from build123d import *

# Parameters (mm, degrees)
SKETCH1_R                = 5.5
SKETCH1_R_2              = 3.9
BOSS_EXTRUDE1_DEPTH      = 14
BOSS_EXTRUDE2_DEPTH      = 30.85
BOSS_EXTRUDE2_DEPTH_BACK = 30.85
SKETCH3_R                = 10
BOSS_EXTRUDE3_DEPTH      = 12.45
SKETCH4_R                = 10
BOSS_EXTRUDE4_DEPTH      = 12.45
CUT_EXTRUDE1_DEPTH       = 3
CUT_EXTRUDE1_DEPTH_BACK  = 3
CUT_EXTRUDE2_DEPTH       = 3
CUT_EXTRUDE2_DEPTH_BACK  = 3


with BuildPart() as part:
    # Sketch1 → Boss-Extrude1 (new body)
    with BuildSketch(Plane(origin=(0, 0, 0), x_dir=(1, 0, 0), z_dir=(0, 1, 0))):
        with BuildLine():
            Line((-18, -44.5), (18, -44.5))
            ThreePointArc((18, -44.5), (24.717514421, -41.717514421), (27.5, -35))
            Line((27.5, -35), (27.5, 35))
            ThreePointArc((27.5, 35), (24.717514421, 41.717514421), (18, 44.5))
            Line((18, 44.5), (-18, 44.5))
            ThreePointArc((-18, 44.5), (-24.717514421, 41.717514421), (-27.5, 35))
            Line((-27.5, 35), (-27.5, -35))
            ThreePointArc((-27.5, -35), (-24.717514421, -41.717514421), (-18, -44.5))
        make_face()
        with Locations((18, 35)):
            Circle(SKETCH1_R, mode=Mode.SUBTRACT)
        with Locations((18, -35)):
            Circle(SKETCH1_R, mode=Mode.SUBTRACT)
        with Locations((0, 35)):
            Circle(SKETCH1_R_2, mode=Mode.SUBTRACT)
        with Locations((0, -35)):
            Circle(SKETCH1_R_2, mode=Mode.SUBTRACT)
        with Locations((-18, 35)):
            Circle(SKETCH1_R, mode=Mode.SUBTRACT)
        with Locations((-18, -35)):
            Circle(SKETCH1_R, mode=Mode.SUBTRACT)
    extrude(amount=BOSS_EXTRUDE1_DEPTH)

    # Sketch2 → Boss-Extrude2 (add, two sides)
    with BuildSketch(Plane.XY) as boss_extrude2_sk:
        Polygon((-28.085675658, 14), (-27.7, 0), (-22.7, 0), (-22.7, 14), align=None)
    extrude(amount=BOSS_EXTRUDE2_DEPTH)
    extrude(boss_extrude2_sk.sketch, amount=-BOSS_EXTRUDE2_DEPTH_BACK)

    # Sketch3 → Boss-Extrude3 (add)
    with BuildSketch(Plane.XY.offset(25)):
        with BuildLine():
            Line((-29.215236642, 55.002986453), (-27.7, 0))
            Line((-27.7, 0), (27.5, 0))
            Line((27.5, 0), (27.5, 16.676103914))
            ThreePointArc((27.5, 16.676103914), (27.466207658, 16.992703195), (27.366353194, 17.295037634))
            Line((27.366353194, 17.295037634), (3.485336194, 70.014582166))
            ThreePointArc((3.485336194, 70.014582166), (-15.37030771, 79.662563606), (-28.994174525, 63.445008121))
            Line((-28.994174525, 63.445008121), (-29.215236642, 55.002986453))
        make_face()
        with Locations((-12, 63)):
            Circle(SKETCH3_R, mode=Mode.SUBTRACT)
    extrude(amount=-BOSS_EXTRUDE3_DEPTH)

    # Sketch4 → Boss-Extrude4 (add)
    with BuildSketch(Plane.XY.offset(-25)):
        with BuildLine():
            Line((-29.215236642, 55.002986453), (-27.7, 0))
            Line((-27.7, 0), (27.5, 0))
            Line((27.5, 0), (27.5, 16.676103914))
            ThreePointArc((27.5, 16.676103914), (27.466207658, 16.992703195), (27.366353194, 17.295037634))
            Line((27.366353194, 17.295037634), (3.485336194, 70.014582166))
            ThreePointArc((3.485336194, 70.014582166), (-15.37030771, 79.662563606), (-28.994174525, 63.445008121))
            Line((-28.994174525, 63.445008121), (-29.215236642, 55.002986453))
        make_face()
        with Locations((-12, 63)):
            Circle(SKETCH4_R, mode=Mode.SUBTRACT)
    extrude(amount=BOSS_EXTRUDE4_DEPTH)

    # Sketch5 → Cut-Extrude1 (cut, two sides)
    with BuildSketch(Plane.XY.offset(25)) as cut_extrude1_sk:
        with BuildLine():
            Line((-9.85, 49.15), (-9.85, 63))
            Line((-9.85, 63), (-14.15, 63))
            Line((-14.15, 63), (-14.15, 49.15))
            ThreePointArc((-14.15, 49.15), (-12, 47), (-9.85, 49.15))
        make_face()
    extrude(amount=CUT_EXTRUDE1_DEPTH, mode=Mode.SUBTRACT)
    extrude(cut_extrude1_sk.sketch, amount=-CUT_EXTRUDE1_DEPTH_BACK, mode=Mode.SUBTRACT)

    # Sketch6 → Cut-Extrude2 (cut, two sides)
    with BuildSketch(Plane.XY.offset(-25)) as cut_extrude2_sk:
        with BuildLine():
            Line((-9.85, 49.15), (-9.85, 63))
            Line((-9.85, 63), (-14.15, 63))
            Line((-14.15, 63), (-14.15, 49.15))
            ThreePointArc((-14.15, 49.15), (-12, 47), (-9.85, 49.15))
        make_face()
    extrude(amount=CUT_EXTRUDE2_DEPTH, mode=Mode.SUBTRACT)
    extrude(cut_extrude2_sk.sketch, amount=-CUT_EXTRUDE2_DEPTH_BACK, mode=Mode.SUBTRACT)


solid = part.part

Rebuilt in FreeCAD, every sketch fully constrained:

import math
import FreeCAD as App
import Part
import Sketcher
from FreeCAD import Vector
Q = App.Units.Quantity

doc = App.newDocument("Part")
params = doc.addObject("Spreadsheet::Sheet", "Params")
for row, (alias, value) in enumerate([
    ("sketch1_diameter", "11 mm"),
    ("sketch1_diameter2", "7.8 mm"),
    ("sketch1_radius", "9.5 mm"),
    ("sketch1_width", "36 mm"),
    ("sketch1_height", "70 mm"),
    ("pad1_length", "14 mm"),
    ("sketch2_width", "5 mm"),
    ("sketch2_height", "14 mm"),
    ("pad2_length", "30.85 mm"),
    ("pad2_length2", "30.85 mm"),
    ("sketch3_diameter", "20 mm"),
    ("sketch3_radius", "17 mm"),
    ("sketch3_radius2", "1.5 mm"),
    ("sketch3_width", "55.2 mm"),
    ("pad3_length", "12.45 mm"),
    ("sketch4_diameter", "20 mm"),
    ("sketch4_radius", "17 mm"),
    ("sketch4_radius2", "1.5 mm"),
    ("sketch4_width", "55.2 mm"),
    ("pad4_length", "12.45 mm"),
    ("sketch5_radius", "2.15 mm"),
    ("sketch5_height", "13.85 mm"),
    ("pocket1_length", "3 mm"),
    ("pocket1_length2", "3 mm"),
    ("sketch6_radius", "2.15 mm"),
    ("sketch6_height", "13.85 mm"),
    ("pocket2_length", "3 mm"),
    ("pocket2_length2", "3 mm"),
], start=1):
    params.set(f"A{row}", alias)
    params.set(f"B{row}", "=" + value)
    params.setAlias(f"B{row}", alias)

body = doc.addObject("PartDesign::Body", "Body")

# Sketch on XZ plane
sketch1 = body.newObject("Sketcher::SketchObject", "Sketch")
sketch1.AttachmentSupport = (doc.getObject("XZ_Plane"), [""])
sketch1.MapMode = "FlatFace"
sketch1.addGeometry([
    Part.LineSegment(Vector(-18, 44.5, 0), Vector(18, 44.5, 0)),  # 0
    Part.ArcOfCircle(Part.Circle(Vector(18, 35, 0), Vector(0, 0, 1), 9.5), math.radians(0), math.radians(90)),  # 1
    Part.LineSegment(Vector(27.5, 35, 0), Vector(27.5, -35, 0)),  # 2
    Part.ArcOfCircle(Part.Circle(Vector(18, -35, 0), Vector(0, 0, 1), 9.5), math.radians(-90), math.radians(0)),  # 3
    Part.LineSegment(Vector(18, -44.5, 0), Vector(-18, -44.5, 0)),  # 4
    Part.ArcOfCircle(Part.Circle(Vector(-18, -35, 0), Vector(0, 0, 1), 9.5), math.radians(-180), math.radians(-90)),  # 5
    Part.LineSegment(Vector(-27.5, -35, 0), Vector(-27.5, 35, 0)),  # 6
    Part.ArcOfCircle(Part.Circle(Vector(-18, 35, 0), Vector(0, 0, 1), 9.5), math.radians(90), math.radians(180)),  # 7
    Part.Circle(Vector(-18, 35, 0), Vector(0, 0, 1), 5.5),  # 8
    Part.Circle(Vector(0, 35, 0), Vector(0, 0, 1), 3.9),  # 9
    Part.Circle(Vector(18, 35, 0), Vector(0, 0, 1), 5.5),  # 10
    Part.Circle(Vector(-18, -35, 0), Vector(0, 0, 1), 5.5),  # 11
    Part.Circle(Vector(0, -35, 0), Vector(0, 0, 1), 3.9),  # 12
    Part.Circle(Vector(18, -35, 0), Vector(0, 0, 1), 5.5),  # 13
], False)
sketch1.addConstraint([
    Sketcher.Constraint("Tangent", 0, 2, 1, 2),
    Sketcher.Constraint("Tangent", 1, 1, 2, 1),
    Sketcher.Constraint("Tangent", 2, 2, 3, 2),
    Sketcher.Constraint("Tangent", 3, 1, 4, 1),
    Sketcher.Constraint("Tangent", 4, 2, 5, 2),
    Sketcher.Constraint("Tangent", 5, 1, 6, 1),
    Sketcher.Constraint("Tangent", 6, 2, 7, 2),
    Sketcher.Constraint("Tangent", 7, 1, 0, 1),
    Sketcher.Constraint("Horizontal", 0),
    Sketcher.Constraint("Vertical", 2),
    Sketcher.Constraint("Horizontal", 4),
    Sketcher.Constraint("Vertical", 6),
    Sketcher.Constraint("Coincident", 8, 3, 7, 3),
    Sketcher.Constraint("Coincident", 10, 3, 1, 3),
    Sketcher.Constraint("Coincident", 11, 3, 5, 3),
    Sketcher.Constraint("Coincident", 13, 3, 3, 3),
    Sketcher.Constraint("Equal", 1, 3),
    Sketcher.Constraint("Equal", 3, 5),
    Sketcher.Constraint("Equal", 5, 7),
    Sketcher.Constraint("Equal", 8, 10),
    Sketcher.Constraint("Equal", 10, 11),
    Sketcher.Constraint("Equal", 9, 12),
    Sketcher.Constraint("Equal", 11, 13),
    Sketcher.Constraint("Symmetric", 1, 3, 5, 3, -1, 1),
    Sketcher.Constraint("Symmetric", 9, 3, 12, 3, -1, 1),
    Sketcher.Constraint("PointOnObject", 9, 3, -2),
    Sketcher.Constraint("Horizontal", 8, 3, 9, 3),
    Sketcher.Constraint("Diameter", 8, Q("11 mm")),
    Sketcher.Constraint("Diameter", 9, Q("7.8 mm")),
    Sketcher.Constraint("Radius", 1, Q("9.5 mm")),
    Sketcher.Constraint("DistanceX", 0, 1, 0, 2, Q("36 mm")),
    Sketcher.Constraint("DistanceY", 2, 2, 2, 1, Q("70 mm")),
])
sketch1.setExpression("Constraints[27]", "Params.sketch1_diameter")
sketch1.setExpression("Constraints[28]", "Params.sketch1_diameter2")
sketch1.setExpression("Constraints[29]", "Params.sketch1_radius")
sketch1.setExpression("Constraints[30]", "Params.sketch1_width")
sketch1.setExpression("Constraints[31]", "Params.sketch1_height")
pad1 = body.newObject("PartDesign::Pad", "Pad")
pad1.Profile = sketch1
pad1.setExpression("Length", "Params.pad1_length")
pad1.Reversed = True

# Sketch on XY plane
sketch2 = body.newObject("Sketcher::SketchObject", "Sketch001")
sketch2.AttachmentSupport = (doc.getObject("XY_Plane"), [""])
sketch2.MapMode = "FlatFace"
sketch2.addGeometry([
    Part.LineSegment(Vector(-28.085676, 14, 0), Vector(-27.7, 0, 0)),
    Part.LineSegment(Vector(-27.7, 0, 0), Vector(-22.7, 0, 0)),
    Part.LineSegment(Vector(-22.7, 0, 0), Vector(-22.7, 14, 0)),
    Part.LineSegment(Vector(-22.7, 14, 0), Vector(-28.085676, 14, 0)),
], False)
sketch2.addConstraint([
    Sketcher.Constraint("Coincident", 0, 2, 1, 1),
    Sketcher.Constraint("Coincident", 1, 2, 2, 1),
    Sketcher.Constraint("Coincident", 2, 2, 3, 1),
    Sketcher.Constraint("Coincident", 3, 2, 0, 1),
    Sketcher.Constraint("Horizontal", 1),
    Sketcher.Constraint("Vertical", 2),
    Sketcher.Constraint("Horizontal", 3),
    Sketcher.Constraint("PointOnObject", 0, 2, -1),
    Sketcher.Constraint("DistanceX", 1, 1, 1, 2, Q("5 mm")),
    Sketcher.Constraint("DistanceY", 2, 1, 2, 2, Q("14 mm")),
    Sketcher.Constraint("DistanceX", 0, 2, -1, 1, Q("27.7 mm")),
    Sketcher.Constraint("Distance", 0, Q("14.005311 mm")),
])
sketch2.setExpression("Constraints[8]", "Params.sketch2_width")
sketch2.setExpression("Constraints[9]", "Params.sketch2_height")
pad2 = body.newObject("PartDesign::Pad", "Pad001")
pad2.Profile = sketch2
pad2.Type = "TwoLengths"
pad2.setExpression("Length", "Params.pad2_length")
pad2.setExpression("Length2", "Params.pad2_length2")

# Sketch on XY plane
sketch3 = body.newObject("Sketcher::SketchObject", "Sketch002")
sketch3.AttachmentSupport = (doc.getObject("XY_Plane"), [""])
sketch3.MapMode = "FlatFace"
sketch3.AttachmentOffset = App.Placement(Vector(0, 0, 25), App.Rotation())
sketch3.addGeometry([
    Part.LineSegment(Vector(-29.2, 55, 0), Vector(-27.7, 0, 0)),  # 0
    Part.LineSegment(Vector(-27.7, 0, 0), Vector(27.5, 0, 0)),  # 1
    Part.LineSegment(Vector(27.5, 0, 0), Vector(27.5, 16.7, 0)),  # 2
    Part.ArcOfCircle(Part.Circle(Vector(26, 16.7, 0), Vector(0, 0, 1), 1.5), math.radians(0), math.radians(24)),  # 3
    Part.LineSegment(Vector(27.4, 17.3, 0), Vector(3.5, 70, 0)),  # 4
    Part.ArcOfCircle(Part.Circle(Vector(-12, 63, 0), Vector(0, 0, 1), 17), math.radians(24), math.radians(178)),  # 5
    Part.LineSegment(Vector(-29, 63.4, 0), Vector(-29.2, 55, 0)),  # 6
    Part.Circle(Vector(-12, 63, 0), Vector(0, 0, 1), 10),  # 7
], False)
sketch3.addConstraint([
    Sketcher.Constraint("Coincident", 0, 2, 1, 1),
    Sketcher.Constraint("Coincident", 1, 2, 2, 1),
    Sketcher.Constraint("Tangent", 2, 2, 3, 1),
    Sketcher.Constraint("Tangent", 3, 2, 4, 1),
    Sketcher.Constraint("Tangent", 4, 2, 5, 1),
    Sketcher.Constraint("Tangent", 5, 2, 6, 1),
    Sketcher.Constraint("Coincident", 6, 2, 0, 1),
    Sketcher.Constraint("Horizontal", 1),
    Sketcher.Constraint("Vertical", 2),
    Sketcher.Constraint("Coincident", 7, 3, 5, 3),
    Sketcher.Constraint("PointOnObject", 0, 2, -1),
    Sketcher.Constraint("Diameter", 7, Q("20 mm")),
    Sketcher.Constraint("Radius", 5, Q("17 mm")),
    Sketcher.Constraint("Radius", 3, Q("1.5 mm")),
    Sketcher.Constraint("DistanceX", 1, 1, 1, 2, Q("55.2 mm")),
    Sketcher.Constraint("DistanceX", -1, 1, 3, 3, Q("26 mm")),
    Sketcher.Constraint("DistanceX", 5, 3, -1, 1, Q("12 mm")),
    Sketcher.Constraint("DistanceY", -1, 1, 5, 3, Q("63 mm")),
    Sketcher.Constraint("Angle", 6, Q("-91.5 deg")),
    Sketcher.Constraint("Distance", 4, Q("57.87619 mm")),
    Sketcher.Constraint("DistanceY", 6, 2, 5, 2, Q("8.442022 mm")),
])
sketch3.setExpression("Constraints[11]", "Params.sketch3_diameter")
sketch3.setExpression("Constraints[12]", "Params.sketch3_radius")
sketch3.setExpression("Constraints[13]", "Params.sketch3_radius2")
sketch3.setExpression("Constraints[14]", "Params.sketch3_width")
pad3 = body.newObject("PartDesign::Pad", "Pad002")
pad3.Profile = sketch3
pad3.setExpression("Length", "Params.pad3_length")
pad3.Reversed = True

# Sketch on XY plane
sketch4 = body.newObject("Sketcher::SketchObject", "Sketch003")
sketch4.AttachmentSupport = (doc.getObject("XY_Plane"), [""])
sketch4.MapMode = "FlatFace"
sketch4.AttachmentOffset = App.Placement(Vector(0, 0, -25), App.Rotation())
sketch4.addGeometry([
    Part.LineSegment(Vector(-29.2, 55, 0), Vector(-27.7, 0, 0)),  # 0
    Part.LineSegment(Vector(-27.7, 0, 0), Vector(27.5, 0, 0)),  # 1
    Part.LineSegment(Vector(27.5, 0, 0), Vector(27.5, 16.7, 0)),  # 2
    Part.ArcOfCircle(Part.Circle(Vector(26, 16.7, 0), Vector(0, 0, 1), 1.5), math.radians(0), math.radians(24)),  # 3
    Part.LineSegment(Vector(27.4, 17.3, 0), Vector(3.5, 70, 0)),  # 4
    Part.ArcOfCircle(Part.Circle(Vector(-12, 63, 0), Vector(0, 0, 1), 17), math.radians(24), math.radians(178)),  # 5
    Part.LineSegment(Vector(-29, 63.4, 0), Vector(-29.2, 55, 0)),  # 6
    Part.Circle(Vector(-12, 63, 0), Vector(0, 0, 1), 10),  # 7
], False)
sketch4.addConstraint([
    Sketcher.Constraint("Coincident", 0, 2, 1, 1),
    Sketcher.Constraint("Coincident", 1, 2, 2, 1),
    Sketcher.Constraint("Tangent", 2, 2, 3, 1),
    Sketcher.Constraint("Tangent", 3, 2, 4, 1),
    Sketcher.Constraint("Tangent", 4, 2, 5, 1),
    Sketcher.Constraint("Tangent", 5, 2, 6, 1),
    Sketcher.Constraint("Coincident", 6, 2, 0, 1),
    Sketcher.Constraint("Horizontal", 1),
    Sketcher.Constraint("Vertical", 2),
    Sketcher.Constraint("Coincident", 7, 3, 5, 3),
    Sketcher.Constraint("PointOnObject", 0, 2, -1),
    Sketcher.Constraint("Diameter", 7, Q("20 mm")),
    Sketcher.Constraint("Radius", 5, Q("17 mm")),
    Sketcher.Constraint("Radius", 3, Q("1.5 mm")),
    Sketcher.Constraint("DistanceX", 1, 1, 1, 2, Q("55.2 mm")),
    Sketcher.Constraint("DistanceX", -1, 1, 3, 3, Q("26 mm")),
    Sketcher.Constraint("DistanceX", 5, 3, -1, 1, Q("12 mm")),
    Sketcher.Constraint("DistanceY", -1, 1, 5, 3, Q("63 mm")),
    Sketcher.Constraint("Angle", 6, Q("-91.5 deg")),
    Sketcher.Constraint("Distance", 4, Q("57.87619 mm")),
    Sketcher.Constraint("DistanceY", 6, 2, 5, 2, Q("8.442022 mm")),
])
sketch4.setExpression("Constraints[11]", "Params.sketch4_diameter")
sketch4.setExpression("Constraints[12]", "Params.sketch4_radius")
sketch4.setExpression("Constraints[13]", "Params.sketch4_radius2")
sketch4.setExpression("Constraints[14]", "Params.sketch4_width")
pad4 = body.newObject("PartDesign::Pad", "Pad003")
pad4.Profile = sketch4
pad4.setExpression("Length", "Params.pad4_length")

# Sketch on XY plane
sketch5 = body.newObject("Sketcher::SketchObject", "Sketch004")
sketch5.AttachmentSupport = (doc.getObject("XY_Plane"), [""])
sketch5.MapMode = "FlatFace"
sketch5.AttachmentOffset = App.Placement(Vector(0, 0, 25), App.Rotation())
sketch5.addGeometry([
    Part.LineSegment(Vector(-9.8, 49.1, 0), Vector(-9.8, 63, 0)),
    Part.LineSegment(Vector(-9.8, 63, 0), Vector(-14.2, 63, 0)),
    Part.LineSegment(Vector(-14.2, 63, 0), Vector(-14.2, 49.1, 0)),
    Part.ArcOfCircle(Part.Circle(Vector(-12, 49.1, 0), Vector(0, 0, 1), 2.1), math.radians(180), math.radians(360)),
], False)
sketch5.addConstraint([
    Sketcher.Constraint("Coincident", 0, 2, 1, 1),
    Sketcher.Constraint("Coincident", 1, 2, 2, 1),
    Sketcher.Constraint("Tangent", 2, 2, 3, 1),
    Sketcher.Constraint("Tangent", 3, 2, 0, 1),
    Sketcher.Constraint("Vertical", 0),
    Sketcher.Constraint("Horizontal", 1),
    Sketcher.Constraint("Vertical", 2),
    Sketcher.Constraint("Radius", 3, Q("2.15 mm")),
    Sketcher.Constraint("DistanceX", 3, 3, -1, 1, Q("12 mm")),
    Sketcher.Constraint("DistanceY", -1, 1, 0, 2, Q("63 mm")),
    Sketcher.Constraint("DistanceY", 0, 1, 0, 2, Q("13.85 mm")),
])
sketch5.setExpression("Constraints[7]", "Params.sketch5_radius")
sketch5.setExpression("Constraints[10]", "Params.sketch5_height")
pocket1 = body.newObject("PartDesign::Pocket", "Pocket")
pocket1.Profile = sketch5
pocket1.Type = "TwoLengths"
pocket1.setExpression("Length", "Params.pocket1_length")
pocket1.setExpression("Length2", "Params.pocket1_length2")
pocket1.Reversed = True

# Sketch on XY plane
sketch6 = body.newObject("Sketcher::SketchObject", "Sketch005")
sketch6.AttachmentSupport = (doc.getObject("XY_Plane"), [""])
sketch6.MapMode = "FlatFace"
sketch6.AttachmentOffset = App.Placement(Vector(0, 0, -25), App.Rotation())
sketch6.addGeometry([
    Part.LineSegment(Vector(-9.8, 49.1, 0), Vector(-9.8, 63, 0)),
    Part.LineSegment(Vector(-9.8, 63, 0), Vector(-14.2, 63, 0)),
    Part.LineSegment(Vector(-14.2, 63, 0), Vector(-14.2, 49.1, 0)),
    Part.ArcOfCircle(Part.Circle(Vector(-12, 49.1, 0), Vector(0, 0, 1), 2.1), math.radians(180), math.radians(360)),
], False)
sketch6.addConstraint([
    Sketcher.Constraint("Coincident", 0, 2, 1, 1),
    Sketcher.Constraint("Coincident", 1, 2, 2, 1),
    Sketcher.Constraint("Tangent", 2, 2, 3, 1),
    Sketcher.Constraint("Tangent", 3, 2, 0, 1),
    Sketcher.Constraint("Vertical", 0),
    Sketcher.Constraint("Horizontal", 1),
    Sketcher.Constraint("Vertical", 2),
    Sketcher.Constraint("Radius", 3, Q("2.15 mm")),
    Sketcher.Constraint("DistanceX", 3, 3, -1, 1, Q("12 mm")),
    Sketcher.Constraint("DistanceY", -1, 1, 0, 2, Q("63 mm")),
    Sketcher.Constraint("DistanceY", 0, 1, 0, 2, Q("13.85 mm")),
])
sketch6.setExpression("Constraints[7]", "Params.sketch6_radius")
sketch6.setExpression("Constraints[10]", "Params.sketch6_height")
pocket2 = body.newObject("PartDesign::Pocket", "Pocket001")
pocket2.Profile = sketch6
pocket2.Type = "TwoLengths"
pocket2.setExpression("Length", "Params.pocket2_length")
pocket2.setExpression("Length2", "Params.pocket2_length2")
pocket2.Reversed = True

doc.recompute()
